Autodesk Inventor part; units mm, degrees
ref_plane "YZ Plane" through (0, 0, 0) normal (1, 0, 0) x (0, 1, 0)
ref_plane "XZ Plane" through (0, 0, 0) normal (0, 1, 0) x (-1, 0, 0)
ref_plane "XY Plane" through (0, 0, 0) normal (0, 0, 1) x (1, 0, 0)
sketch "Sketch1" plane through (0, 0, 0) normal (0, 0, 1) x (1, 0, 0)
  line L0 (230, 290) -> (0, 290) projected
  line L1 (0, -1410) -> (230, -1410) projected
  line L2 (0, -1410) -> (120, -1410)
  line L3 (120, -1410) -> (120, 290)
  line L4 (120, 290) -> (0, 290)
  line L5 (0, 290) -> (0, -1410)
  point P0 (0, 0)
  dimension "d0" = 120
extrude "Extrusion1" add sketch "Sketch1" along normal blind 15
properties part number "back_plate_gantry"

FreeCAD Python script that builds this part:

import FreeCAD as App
import Part
import Sketcher

V = App.Vector
Q = App.Units.Quantity

doc = App.newDocument("Part")
body = doc.addObject("PartDesign::Body", "Body")

# Sketch on XY plane
sketch1 = body.newObject("Sketcher::SketchObject", "Sketch")
sketch1.AttachmentSupport = (doc.getObject("XY_Plane"), [""])
sketch1.MapMode = "FlatFace"
sketch1.addGeometry([
    Part.LineSegment(V(120, -1410, 0), V(120, 290, 0)),
    Part.LineSegment(V(120, 290, 0), V(0, 290, 0)),
    Part.LineSegment(V(0, 290, 0), V(0, -1410, 0)),
    Part.LineSegment(V(0, -1410, 0), V(120, -1410, 0)),
], False)
sketch1.addConstraint([
    Sketcher.Constraint("Coincident", 0, 2, 1, 1),
    Sketcher.Constraint("Coincident", 1, 2, 2, 1),
    Sketcher.Constraint("Coincident", 2, 2, 3, 1),
    Sketcher.Constraint("Coincident", 3, 2, 0, 1),
    Sketcher.Constraint("Vertical", 0),
    Sketcher.Constraint("Horizontal", 1),
    Sketcher.Constraint("Vertical", 2),
    Sketcher.Constraint("Horizontal", 3),
    Sketcher.Constraint("PointOnObject", 1, 2, -2),
    Sketcher.Constraint("DistanceX", 1, 2, 1, 1, Q("120 mm")),
    Sketcher.Constraint("DistanceY", 0, 1, 0, 2, Q("1700 mm")),
    Sketcher.Constraint("DistanceY", -1, 1, 0, 2, Q("290 mm")),
])
pad1 = body.newObject("PartDesign::Pad", "Pad")
pad1.Profile = sketch1
pad1.Length = 15

doc.recompute()
